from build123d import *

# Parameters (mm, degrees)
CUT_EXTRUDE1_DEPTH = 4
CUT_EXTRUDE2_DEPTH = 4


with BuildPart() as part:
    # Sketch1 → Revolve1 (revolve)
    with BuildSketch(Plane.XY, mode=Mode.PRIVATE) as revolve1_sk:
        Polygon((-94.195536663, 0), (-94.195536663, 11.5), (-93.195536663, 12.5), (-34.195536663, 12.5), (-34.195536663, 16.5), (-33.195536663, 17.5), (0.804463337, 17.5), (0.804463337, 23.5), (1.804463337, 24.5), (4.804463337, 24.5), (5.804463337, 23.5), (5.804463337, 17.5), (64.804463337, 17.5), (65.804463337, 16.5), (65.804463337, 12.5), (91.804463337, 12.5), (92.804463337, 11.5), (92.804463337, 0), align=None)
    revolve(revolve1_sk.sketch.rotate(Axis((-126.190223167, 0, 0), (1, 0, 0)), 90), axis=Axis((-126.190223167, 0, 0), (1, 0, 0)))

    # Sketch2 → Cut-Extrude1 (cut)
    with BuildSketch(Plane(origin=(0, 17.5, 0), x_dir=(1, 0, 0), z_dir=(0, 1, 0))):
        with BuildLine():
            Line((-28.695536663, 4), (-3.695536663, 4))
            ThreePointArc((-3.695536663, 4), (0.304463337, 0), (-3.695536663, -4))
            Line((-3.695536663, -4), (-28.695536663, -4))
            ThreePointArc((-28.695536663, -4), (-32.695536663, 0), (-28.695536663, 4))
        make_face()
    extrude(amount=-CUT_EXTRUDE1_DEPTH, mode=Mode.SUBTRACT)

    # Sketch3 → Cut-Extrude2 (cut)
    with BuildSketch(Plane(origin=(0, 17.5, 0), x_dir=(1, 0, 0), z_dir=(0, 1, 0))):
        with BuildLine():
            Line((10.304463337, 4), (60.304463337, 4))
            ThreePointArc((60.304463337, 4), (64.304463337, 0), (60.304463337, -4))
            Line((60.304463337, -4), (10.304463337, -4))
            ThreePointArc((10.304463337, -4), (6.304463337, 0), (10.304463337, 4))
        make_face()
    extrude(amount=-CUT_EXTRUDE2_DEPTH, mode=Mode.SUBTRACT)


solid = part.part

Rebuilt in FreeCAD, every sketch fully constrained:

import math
import FreeCAD as App
import Part
import Sketcher

V = App.Vector

doc = App.newDocument("Part")
body = doc.addObject("PartDesign::Body", "Body")

sketch1 = body.newObject("Sketcher::SketchObject", "Sketch")
sketch1.AttachmentSupport = (doc.getObject("XY_Plane"), [""])
sketch1.MapMode = "FlatFace"
sketch1.addGeometry(Part.LineSegment(V(-94.2, 11.5, 0), V(-94.2, 0, 0)), False)
sketch1.addGeometry(Part.LineSegment(V(-94.2, 0, 0), V(92.8, 0, 0)), False)
sketch1.addGeometry(Part.LineSegment(V(92.8, 0, 0), V(92.8, 11.5, 0)), False)
sketch1.addGeometry(Part.LineSegment(V(92.8, 11.5, 0), V(91.8, 12.5, 0)), False)
sketch1.addGeometry(Part.LineSegment(V(91.8, 12.5, 0), V(65.8, 12.5, 0)), False)
sketch1.addGeometry(Part.LineSegment(V(65.8, 12.5, 0), V(65.8, 16.5, 0)), False)
sketch1.addGeometry(Part.LineSegment(V(65.8, 16.5, 0), V(64.8, 17.5, 0)), False)
sketch1.addGeometry(Part.LineSegment(V(64.8, 17.5, 0), V(5.8, 17.5, 0)), False)
sketch1.addGeometry(Part.LineSegment(V(5.8, 17.5, 0), V(5.8, 23.5, 0)), False)
sketch1.addGeometry(Part.LineSegment(V(5.8, 23.5, 0), V(4.8, 24.5, 0)), False)
sketch1.addGeometry(Part.LineSegment(V(4.8, 24.5, 0), V(1.8, 24.5, 0)), False)
sketch1.addGeometry(Part.LineSegment(V(1.8, 24.5, 0), V(0.8, 23.5, 0)), False)
sketch1.addGeometry(Part.LineSegment(V(0.8, 23.5, 0), V(0.8, 17.5, 0)), False)
sketch1.addGeometry(Part.LineSegment(V(0.8, 17.5, 0), V(-33.2, 17.5, 0)), False)
sketch1.addGeometry(Part.LineSegment(V(-33.2, 17.5, 0), V(-34.2, 16.5, 0)), False)
sketch1.addGeometry(Part.LineSegment(V(-34.2, 16.5, 0), V(-34.2, 12.5, 0)), False)
sketch1.addGeometry(Part.LineSegment(V(-34.2, 12.5, 0), V(-93.2, 12.5, 0)), False)
sketch1.addGeometry(Part.LineSegment(V(-93.2, 12.5, 0), V(-94.2, 11.5, 0)), False)
sketch1.addConstraint(Sketcher.Constraint("Coincident", 0, 2, 1, 1))
sketch1.addConstraint(Sketcher.Constraint("Coincident", 1, 2, 2, 1))
sketch1.addConstraint(Sketcher.Constraint("Coincident", 2, 2, 3, 1))
sketch1.addConstraint(Sketcher.Constraint("Coincident", 3, 2, 4, 1))
sketch1.addConstraint(Sketcher.Constraint("Coincident", 4, 2, 5, 1))
sketch1.addConstraint(Sketcher.Constraint("Coincident", 5, 2, 6, 1))
sketch1.addConstraint(Sketcher.Constraint("Coincident", 6, 2, 7, 1))
sketch1.addConstraint(Sketcher.Constraint("Coincident", 7, 2, 8, 1))
sketch1.addConstraint(Sketcher.Constraint("Coincident", 8, 2, 9, 1))
sketch1.addConstraint(Sketcher.Constraint("Coincident", 9, 2, 10, 1))
sketch1.addConstraint(Sketcher.Constraint("Coincident", 10, 2, 11, 1))
sketch1.addConstraint(Sketcher.Constraint("Coincident", 11, 2, 12, 1))
sketch1.addConstraint(Sketcher.Constraint("Coincident", 12, 2, 13, 1))
sketch1.addConstraint(Sketcher.Constraint("Coincident", 13, 2, 14, 1))
sketch1.addConstraint(Sketcher.Constraint("Coincident", 14, 2, 15, 1))
sketch1.addConstraint(Sketcher.Constraint("Coincident", 15, 2, 16, 1))
sketch1.addConstraint(Sketcher.Constraint("Coincident", 16, 2, 17, 1))
sketch1.addConstraint(Sketcher.Constraint("Coincident", 17, 2, 0, 1))
sketch1.addConstraint(Sketcher.Constraint("Vertical", 0))
sketch1.addConstraint(Sketcher.Constraint("Horizontal", 1))
sketch1.addConstraint(Sketcher.Constraint("Vertical", 2))
sketch1.addConstraint(Sketcher.Constraint("Horizontal", 4))
sketch1.addConstraint(Sketcher.Constraint("Vertical", 5))
sketch1.addConstraint(Sketcher.Constraint("Horizontal", 7))
sketch1.addConstraint(Sketcher.Constraint("Vertical", 8))
sketch1.addConstraint(Sketcher.Constraint("Horizontal", 10))
sketch1.addConstraint(Sketcher.Constraint("Vertical", 12))
sketch1.addConstraint(Sketcher.Constraint("Horizontal", 13))
sketch1.addConstraint(Sketcher.Constraint("Vertical", 15))
sketch1.addConstraint(Sketcher.Constraint("Horizontal", 16))
sketch1.addConstraint(Sketcher.Constraint("PointOnObject", 0, 2, -1))
sketch1.addConstraint(Sketcher.Constraint("Parallel", 3, 6))
sketch1.addConstraint(Sketcher.Constraint("Parallel", 6, 9))
sketch1.addConstraint(Sketcher.Constraint("Perpendicular", 9, 11))
sketch1.addConstraint(Sketcher.Constraint("Parallel", 11, 14))
sketch1.addConstraint(Sketcher.Constraint("Parallel", 14, 17))
sketch1.addConstraint(Sketcher.Constraint("Horizontal", 8, 2, 11, 2))
sketch1.addConstraint(Sketcher.Constraint("Horizontal", 7, 2, 12, 2))
sketch1.addConstraint(Sketcher.Constraint("Horizontal", 5, 2, 14, 2))
sketch1.addConstraint(Sketcher.Constraint("Horizontal", 4, 2, 15, 2))
sketch1.addConstraint(Sketcher.Constraint("Horizontal", 2, 2, 17, 2))
sketch1.addConstraint(Sketcher.Constraint("Equal", 7, 16))
sketch1.addConstraint(Sketcher.Constraint("Equal", 3, 6))
sketch1.addConstraint(Sketcher.Constraint("Equal", 6, 9))
sketch1.addConstraint(Sketcher.Constraint("Equal", 9, 11))
sketch1.addConstraint(Sketcher.Constraint("DistanceX", 1, 1, 1, 2, 187.0))
sketch1.addConstraint(Sketcher.Constraint("DistanceX", 4, 2, 4, 1, 26.0))
sketch1.addConstraint(Sketcher.Constraint("DistanceX", 7, 2, 7, 1, 59.0))
sketch1.addConstraint(Sketcher.Constraint("DistanceX", 10, 2, 10, 1, 3.0))
sketch1.addConstraint(Sketcher.Constraint("DistanceX", 13, 2, 13, 1, 34.0))
sketch1.addConstraint(Sketcher.Constraint("DistanceY", 5, 1, 5, 2, 4.0))
sketch1.addConstraint(Sketcher.Constraint("DistanceY", 8, 1, 8, 2, 6.0))
sketch1.addConstraint(Sketcher.Constraint("DistanceY", 0, 2, 0, 1, 11.5))
sketch1.addConstraint(Sketcher.Constraint("DistanceX", 0, 2, -1, 1, 94.195537))
revolution = body.newObject("PartDesign::Revolution", "Revolution")
revolution.Profile = sketch1
revolution.ReferenceAxis = (sketch1, ["H_Axis"])
revolution.Angle = 360

sketch2 = body.newObject("Sketcher::SketchObject", "Sketch001")
sketch2.AttachmentSupport = (doc.getObject("XZ_Plane"), [""])
sketch2.MapMode = "FlatFace"
sketch2.AttachmentOffset = App.Placement(V(0, 0, -17.5), App.Rotation())
sketch2.addGeometry(Part.LineSegment(V(-3.7, -4, 0), V(-28.7, -4, 0)), False)
sketch2.addGeometry(Part.ArcOfCircle(Part.Circle(V(-28.7, 0, 0), V(0, 0, 1), 4), math.radians(90), math.radians(270)), False)
sketch2.addGeometry(Part.LineSegment(V(-28.7, 4, 0), V(-3.7, 4, 0)), False)
sketch2.addGeometry(Part.ArcOfCircle(Part.Circle(V(-3.7, 0, 0), V(0, 0, 1), 4), math.radians(-90), math.radians(90)), False)
sketch2.addConstraint(Sketcher.Constraint("Tangent", 0, 2, 1, 2))
sketch2.addConstraint(Sketcher.Constraint("Tangent", 1, 1, 2, 1))
sketch2.addConstraint(Sketcher.Constraint("Tangent", 2, 2, 3, 2))
sketch2.addConstraint(Sketcher.Constraint("Tangent", 3, 1, 0, 1))
sketch2.addConstraint(Sketcher.Constraint("Horizontal", 0))
sketch2.addConstraint(Sketcher.Constraint("Horizontal", 2))
sketch2.addConstraint(Sketcher.Constraint("PointOnObject", 1, 3, -1))
sketch2.addConstraint(Sketcher.Constraint("Radius", 1, 4.0))
sketch2.addConstraint(Sketcher.Constraint("DistanceX", 0, 2, 0, 1, 25.0))
sketch2.addConstraint(Sketcher.Constraint("DistanceX", 1, 3, -1, 1, 28.695537))
pocket1 = body.newObject("PartDesign::Pocket", "Pocket")
pocket1.Profile = sketch2
pocket1.Length = 4
pocket1.Reversed = True

sketch3 = body.newObject("Sketcher::SketchObject", "Sketch002")
sketch3.AttachmentSupport = (doc.getObject("XZ_Plane"), [""])
sketch3.MapMode = "FlatFace"
sketch3.AttachmentOffset = App.Placement(V(0, 0, -17.5), App.Rotation())
sketch3.addGeometry(Part.LineSegment(V(60.3, -4, 0), V(10.3, -4, 0)), False)
sketch3.addGeometry(Part.ArcOfCircle(Part.Circle(V(10.3, 0, 0), V(0, 0, 1), 4), math.radians(90), math.radians(270)), False)
sketch3.addGeometry(Part.LineSegment(V(10.3, 4, 0), V(60.3, 4, 0)), False)
sketch3.addGeometry(Part.ArcOfCircle(Part.Circle(V(60.3, 0, 0), V(0, 0, 1), 4), math.radians(-90), math.radians(90)), False)
sketch3.addConstraint(Sketcher.Constraint("Tangent", 0, 2, 1, 2))
sketch3.addConstraint(Sketcher.Constraint("Tangent", 1, 1, 2, 1))
sketch3.addConstraint(Sketcher.Constraint("Tangent", 2, 2, 3, 2))
sketch3.addConstraint(Sketcher.Constraint("Tangent", 3, 1, 0, 1))
sketch3.addConstraint(Sketcher.Constraint("Horizontal", 0))
sketch3.addConstraint(Sketcher.Constraint("Horizontal", 2))
sketch3.addConstraint(Sketcher.Constraint("PointOnObject", 1, 3, -1))
sketch3.addConstraint(Sketcher.Constraint("Radius", 1, 4.0))
sketch3.addConstraint(Sketcher.Constraint("DistanceX", 0, 2, 0, 1, 50.0))
sketch3.addConstraint(Sketcher.Constraint("DistanceX", -1, 1, 1, 3, 10.304463))
pocket2 = body.newObject("PartDesign::Pocket", "Pocket001")
pocket2.Profile = sketch3
pocket2.Length = 4
pocket2.Reversed = True

doc.recompute()
